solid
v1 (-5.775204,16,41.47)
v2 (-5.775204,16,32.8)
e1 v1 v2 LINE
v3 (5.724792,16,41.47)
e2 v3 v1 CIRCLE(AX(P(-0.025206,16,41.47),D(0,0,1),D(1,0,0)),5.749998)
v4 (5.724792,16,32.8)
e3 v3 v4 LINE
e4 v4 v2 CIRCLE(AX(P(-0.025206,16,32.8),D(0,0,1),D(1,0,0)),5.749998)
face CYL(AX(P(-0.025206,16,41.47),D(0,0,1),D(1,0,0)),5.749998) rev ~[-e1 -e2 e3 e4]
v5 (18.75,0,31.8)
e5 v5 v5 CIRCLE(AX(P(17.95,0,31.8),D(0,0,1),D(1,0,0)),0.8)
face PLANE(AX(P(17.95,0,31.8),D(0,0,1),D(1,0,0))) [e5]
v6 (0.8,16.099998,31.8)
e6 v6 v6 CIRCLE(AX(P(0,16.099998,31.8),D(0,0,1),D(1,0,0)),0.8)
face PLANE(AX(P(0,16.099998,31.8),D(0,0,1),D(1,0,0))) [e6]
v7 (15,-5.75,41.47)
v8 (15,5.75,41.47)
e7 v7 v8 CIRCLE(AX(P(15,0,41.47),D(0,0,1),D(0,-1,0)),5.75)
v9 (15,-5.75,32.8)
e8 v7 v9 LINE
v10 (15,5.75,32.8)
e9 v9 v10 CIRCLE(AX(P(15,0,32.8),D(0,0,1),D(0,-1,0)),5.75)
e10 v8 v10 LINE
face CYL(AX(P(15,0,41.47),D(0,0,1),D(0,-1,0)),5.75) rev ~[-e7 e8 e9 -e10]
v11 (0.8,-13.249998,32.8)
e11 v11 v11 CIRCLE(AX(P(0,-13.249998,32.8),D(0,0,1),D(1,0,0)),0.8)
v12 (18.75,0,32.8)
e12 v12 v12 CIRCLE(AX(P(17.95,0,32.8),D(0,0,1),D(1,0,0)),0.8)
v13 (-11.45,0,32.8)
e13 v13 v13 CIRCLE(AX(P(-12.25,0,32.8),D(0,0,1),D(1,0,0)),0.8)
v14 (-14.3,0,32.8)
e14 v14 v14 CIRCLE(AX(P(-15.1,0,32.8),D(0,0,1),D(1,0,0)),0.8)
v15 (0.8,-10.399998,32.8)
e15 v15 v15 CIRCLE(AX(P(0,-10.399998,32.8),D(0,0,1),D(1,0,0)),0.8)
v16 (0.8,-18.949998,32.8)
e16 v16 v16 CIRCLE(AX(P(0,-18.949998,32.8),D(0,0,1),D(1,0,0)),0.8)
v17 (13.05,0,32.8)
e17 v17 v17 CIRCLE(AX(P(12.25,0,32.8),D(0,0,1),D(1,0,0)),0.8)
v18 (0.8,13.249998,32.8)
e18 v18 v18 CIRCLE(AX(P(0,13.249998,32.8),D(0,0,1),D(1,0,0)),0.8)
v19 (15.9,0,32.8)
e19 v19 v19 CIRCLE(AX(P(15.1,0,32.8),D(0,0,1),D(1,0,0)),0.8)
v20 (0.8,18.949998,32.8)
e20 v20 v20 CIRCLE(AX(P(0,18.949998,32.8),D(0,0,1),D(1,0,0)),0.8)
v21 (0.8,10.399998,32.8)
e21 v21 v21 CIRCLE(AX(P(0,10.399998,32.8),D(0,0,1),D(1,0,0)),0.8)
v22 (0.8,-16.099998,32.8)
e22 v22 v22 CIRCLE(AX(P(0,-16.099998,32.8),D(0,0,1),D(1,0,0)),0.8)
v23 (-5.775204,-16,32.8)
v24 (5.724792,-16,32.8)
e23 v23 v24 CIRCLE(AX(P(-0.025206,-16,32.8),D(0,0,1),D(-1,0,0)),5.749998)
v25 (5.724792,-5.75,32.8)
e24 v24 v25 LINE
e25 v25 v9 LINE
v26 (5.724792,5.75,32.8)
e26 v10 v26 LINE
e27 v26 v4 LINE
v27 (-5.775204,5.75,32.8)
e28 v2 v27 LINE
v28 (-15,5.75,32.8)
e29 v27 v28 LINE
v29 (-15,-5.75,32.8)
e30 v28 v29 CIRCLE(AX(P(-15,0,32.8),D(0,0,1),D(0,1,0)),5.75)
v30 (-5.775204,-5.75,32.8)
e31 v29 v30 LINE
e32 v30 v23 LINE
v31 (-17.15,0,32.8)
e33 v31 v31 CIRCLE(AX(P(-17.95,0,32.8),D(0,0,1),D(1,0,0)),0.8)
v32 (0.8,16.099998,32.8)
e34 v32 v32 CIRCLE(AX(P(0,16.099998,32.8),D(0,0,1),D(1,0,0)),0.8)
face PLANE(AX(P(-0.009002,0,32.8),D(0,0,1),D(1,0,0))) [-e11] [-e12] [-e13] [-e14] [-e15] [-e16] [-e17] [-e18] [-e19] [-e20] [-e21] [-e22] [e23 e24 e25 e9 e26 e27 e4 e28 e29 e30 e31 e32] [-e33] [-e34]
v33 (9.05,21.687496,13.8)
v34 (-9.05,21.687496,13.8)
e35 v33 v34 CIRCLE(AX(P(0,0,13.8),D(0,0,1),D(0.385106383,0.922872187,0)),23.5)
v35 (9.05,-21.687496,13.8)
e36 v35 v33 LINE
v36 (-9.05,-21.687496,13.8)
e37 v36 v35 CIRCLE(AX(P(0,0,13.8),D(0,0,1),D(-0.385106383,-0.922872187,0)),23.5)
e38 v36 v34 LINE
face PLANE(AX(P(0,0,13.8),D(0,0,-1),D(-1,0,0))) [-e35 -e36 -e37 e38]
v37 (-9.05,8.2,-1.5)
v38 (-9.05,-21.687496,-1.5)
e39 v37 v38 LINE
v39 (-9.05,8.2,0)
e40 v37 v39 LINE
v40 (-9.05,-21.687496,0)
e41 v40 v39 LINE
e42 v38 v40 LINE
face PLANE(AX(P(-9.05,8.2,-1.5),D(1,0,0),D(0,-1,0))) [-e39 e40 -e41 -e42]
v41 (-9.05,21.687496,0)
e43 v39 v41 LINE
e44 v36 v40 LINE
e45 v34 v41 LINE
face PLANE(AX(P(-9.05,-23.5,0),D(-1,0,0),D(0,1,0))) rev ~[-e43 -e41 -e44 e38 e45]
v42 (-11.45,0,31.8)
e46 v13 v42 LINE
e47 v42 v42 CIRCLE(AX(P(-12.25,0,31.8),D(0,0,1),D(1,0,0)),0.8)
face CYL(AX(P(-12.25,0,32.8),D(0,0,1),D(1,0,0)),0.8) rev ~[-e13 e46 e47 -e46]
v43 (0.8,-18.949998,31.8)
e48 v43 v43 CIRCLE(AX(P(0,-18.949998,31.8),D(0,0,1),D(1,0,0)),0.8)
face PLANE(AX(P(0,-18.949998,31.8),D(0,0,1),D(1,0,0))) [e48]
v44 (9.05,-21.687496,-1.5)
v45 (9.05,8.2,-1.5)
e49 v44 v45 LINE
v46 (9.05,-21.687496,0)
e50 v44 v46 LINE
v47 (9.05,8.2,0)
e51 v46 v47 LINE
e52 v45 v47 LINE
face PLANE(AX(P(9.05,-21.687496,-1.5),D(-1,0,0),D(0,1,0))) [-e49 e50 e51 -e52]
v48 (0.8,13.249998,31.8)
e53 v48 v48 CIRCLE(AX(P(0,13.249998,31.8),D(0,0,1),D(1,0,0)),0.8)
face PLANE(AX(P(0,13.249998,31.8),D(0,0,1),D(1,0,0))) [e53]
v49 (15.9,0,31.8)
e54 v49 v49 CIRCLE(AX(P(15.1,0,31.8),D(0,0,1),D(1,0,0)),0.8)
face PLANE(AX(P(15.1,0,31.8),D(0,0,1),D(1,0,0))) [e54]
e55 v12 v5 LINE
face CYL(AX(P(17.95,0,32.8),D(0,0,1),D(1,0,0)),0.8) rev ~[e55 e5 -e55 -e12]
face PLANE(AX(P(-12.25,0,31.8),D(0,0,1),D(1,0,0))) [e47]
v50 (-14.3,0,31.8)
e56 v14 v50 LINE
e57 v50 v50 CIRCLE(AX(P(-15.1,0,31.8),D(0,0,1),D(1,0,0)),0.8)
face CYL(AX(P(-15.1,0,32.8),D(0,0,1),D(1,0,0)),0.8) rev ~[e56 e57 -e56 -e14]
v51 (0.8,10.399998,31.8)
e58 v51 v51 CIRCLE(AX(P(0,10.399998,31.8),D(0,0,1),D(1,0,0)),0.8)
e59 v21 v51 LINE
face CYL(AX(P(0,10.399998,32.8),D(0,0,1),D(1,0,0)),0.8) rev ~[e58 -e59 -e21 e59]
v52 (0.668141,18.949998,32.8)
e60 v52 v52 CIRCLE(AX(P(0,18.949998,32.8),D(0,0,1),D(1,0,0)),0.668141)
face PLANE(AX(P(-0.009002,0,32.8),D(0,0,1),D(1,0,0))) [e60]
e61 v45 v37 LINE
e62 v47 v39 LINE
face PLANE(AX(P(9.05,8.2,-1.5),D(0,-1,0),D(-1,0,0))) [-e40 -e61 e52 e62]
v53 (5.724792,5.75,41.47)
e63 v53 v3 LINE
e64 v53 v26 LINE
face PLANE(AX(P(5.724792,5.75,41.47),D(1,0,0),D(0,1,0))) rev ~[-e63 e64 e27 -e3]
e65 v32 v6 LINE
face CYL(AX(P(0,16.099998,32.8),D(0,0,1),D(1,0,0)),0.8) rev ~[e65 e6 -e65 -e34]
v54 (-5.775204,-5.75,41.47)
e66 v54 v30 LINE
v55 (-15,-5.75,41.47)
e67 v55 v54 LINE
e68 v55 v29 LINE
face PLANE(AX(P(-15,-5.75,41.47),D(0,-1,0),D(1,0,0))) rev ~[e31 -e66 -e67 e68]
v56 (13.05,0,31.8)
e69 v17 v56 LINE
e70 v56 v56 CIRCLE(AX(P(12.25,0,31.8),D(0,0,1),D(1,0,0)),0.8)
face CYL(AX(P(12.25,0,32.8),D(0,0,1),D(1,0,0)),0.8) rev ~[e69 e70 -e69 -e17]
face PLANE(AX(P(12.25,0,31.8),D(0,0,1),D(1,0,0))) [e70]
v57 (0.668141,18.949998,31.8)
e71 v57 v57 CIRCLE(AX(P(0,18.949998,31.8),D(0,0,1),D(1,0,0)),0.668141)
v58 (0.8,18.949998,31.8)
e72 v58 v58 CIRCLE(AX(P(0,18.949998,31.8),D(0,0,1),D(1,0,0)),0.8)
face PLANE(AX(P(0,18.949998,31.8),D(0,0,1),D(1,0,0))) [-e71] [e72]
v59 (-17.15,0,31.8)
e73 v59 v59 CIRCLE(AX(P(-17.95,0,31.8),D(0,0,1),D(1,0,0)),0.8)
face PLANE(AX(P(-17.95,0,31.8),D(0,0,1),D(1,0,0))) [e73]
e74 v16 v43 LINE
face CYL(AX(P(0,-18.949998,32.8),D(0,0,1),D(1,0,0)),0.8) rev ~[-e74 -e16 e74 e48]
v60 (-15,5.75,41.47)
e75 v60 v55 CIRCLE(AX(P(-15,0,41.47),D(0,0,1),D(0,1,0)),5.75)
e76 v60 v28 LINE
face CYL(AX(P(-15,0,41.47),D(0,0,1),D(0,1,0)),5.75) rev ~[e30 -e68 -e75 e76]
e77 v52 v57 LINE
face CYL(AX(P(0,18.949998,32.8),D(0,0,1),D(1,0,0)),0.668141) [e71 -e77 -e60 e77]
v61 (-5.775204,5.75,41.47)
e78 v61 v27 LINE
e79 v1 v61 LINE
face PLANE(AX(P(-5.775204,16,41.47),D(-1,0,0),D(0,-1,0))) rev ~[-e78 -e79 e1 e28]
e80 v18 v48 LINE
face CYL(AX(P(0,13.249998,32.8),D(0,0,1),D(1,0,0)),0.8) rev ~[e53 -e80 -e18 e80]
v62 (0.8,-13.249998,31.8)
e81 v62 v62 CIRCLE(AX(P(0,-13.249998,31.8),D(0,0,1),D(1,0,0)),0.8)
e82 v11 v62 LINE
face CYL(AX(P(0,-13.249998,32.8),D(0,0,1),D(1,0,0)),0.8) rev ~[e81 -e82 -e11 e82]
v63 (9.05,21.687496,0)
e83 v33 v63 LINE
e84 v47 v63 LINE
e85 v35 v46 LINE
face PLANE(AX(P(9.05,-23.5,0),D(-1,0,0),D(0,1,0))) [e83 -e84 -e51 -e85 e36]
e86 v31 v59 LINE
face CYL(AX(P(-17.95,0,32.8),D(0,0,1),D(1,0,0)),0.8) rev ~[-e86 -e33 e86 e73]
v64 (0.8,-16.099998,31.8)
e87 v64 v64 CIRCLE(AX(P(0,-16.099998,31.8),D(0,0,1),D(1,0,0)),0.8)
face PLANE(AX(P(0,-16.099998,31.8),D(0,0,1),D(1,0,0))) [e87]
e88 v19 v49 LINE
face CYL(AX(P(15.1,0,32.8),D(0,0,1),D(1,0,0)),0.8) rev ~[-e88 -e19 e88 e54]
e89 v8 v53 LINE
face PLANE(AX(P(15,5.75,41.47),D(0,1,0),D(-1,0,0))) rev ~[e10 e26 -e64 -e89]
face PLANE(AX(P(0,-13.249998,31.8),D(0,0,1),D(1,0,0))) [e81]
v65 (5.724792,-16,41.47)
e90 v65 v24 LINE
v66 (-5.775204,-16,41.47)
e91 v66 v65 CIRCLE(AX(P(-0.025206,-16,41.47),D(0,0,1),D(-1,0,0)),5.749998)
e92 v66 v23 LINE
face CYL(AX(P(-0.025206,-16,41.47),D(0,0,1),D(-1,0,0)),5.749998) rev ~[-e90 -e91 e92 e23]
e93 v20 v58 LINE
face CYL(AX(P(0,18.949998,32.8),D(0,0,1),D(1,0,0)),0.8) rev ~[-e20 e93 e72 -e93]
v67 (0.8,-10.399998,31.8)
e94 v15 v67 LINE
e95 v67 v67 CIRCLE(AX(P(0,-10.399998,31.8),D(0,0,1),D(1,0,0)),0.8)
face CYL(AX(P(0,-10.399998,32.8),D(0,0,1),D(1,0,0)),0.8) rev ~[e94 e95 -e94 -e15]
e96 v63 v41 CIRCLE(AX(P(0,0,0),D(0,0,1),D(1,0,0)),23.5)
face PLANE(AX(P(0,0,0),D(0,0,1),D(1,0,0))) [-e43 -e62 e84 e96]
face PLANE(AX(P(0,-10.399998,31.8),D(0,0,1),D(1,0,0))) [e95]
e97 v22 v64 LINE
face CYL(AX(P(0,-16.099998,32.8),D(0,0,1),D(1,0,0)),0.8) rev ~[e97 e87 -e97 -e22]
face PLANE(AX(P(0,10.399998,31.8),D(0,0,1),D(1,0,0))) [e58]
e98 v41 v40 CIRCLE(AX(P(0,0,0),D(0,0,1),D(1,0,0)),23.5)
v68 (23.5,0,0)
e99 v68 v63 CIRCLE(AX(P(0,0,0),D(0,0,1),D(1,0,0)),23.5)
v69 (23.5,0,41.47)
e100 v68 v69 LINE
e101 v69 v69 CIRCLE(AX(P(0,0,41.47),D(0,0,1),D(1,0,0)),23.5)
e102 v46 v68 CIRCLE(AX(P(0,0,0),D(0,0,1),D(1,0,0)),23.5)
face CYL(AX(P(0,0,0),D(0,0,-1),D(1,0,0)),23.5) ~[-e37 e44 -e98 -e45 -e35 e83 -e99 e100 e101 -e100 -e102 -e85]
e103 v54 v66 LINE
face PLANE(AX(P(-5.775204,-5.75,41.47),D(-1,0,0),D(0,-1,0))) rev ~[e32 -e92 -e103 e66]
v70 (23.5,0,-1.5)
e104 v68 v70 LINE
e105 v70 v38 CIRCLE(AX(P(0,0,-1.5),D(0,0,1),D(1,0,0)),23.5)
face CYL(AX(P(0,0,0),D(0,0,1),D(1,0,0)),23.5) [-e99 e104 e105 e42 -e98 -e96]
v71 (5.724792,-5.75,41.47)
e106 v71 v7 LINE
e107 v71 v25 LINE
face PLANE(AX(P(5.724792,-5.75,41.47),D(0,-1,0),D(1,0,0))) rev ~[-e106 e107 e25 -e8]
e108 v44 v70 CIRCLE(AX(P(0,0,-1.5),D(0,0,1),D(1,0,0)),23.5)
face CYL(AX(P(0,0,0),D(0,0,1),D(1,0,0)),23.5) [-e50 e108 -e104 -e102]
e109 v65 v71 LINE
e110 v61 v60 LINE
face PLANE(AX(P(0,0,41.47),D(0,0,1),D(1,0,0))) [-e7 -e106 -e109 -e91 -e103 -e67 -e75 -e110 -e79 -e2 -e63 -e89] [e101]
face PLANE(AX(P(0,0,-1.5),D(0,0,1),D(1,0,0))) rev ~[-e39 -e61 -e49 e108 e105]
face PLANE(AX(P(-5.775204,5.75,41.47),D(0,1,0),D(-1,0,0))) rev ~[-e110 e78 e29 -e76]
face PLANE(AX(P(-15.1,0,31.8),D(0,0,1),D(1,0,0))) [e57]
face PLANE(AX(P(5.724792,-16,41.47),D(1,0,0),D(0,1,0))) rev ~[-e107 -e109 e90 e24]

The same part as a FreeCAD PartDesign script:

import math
import FreeCAD as App
import Part
import Sketcher

V = App.Vector


def add_polygon(sketch, points):
    """Adds a closed chain of lines whose ends are joined by coincident constraints."""
    first, n = sketch.GeometryCount, len(points)
    for a, b in zip(points, points[1:] + points[:1]):
        sketch.addGeometry(Part.LineSegment(App.Vector(*a, 0), App.Vector(*b, 0)), False)
    for i in range(n):
        sketch.addConstraint(Sketcher.Constraint("Coincident", first + i, 2, first + (i + 1) % n, 1))

doc = App.newDocument("Part")
body = doc.addObject("PartDesign::Body", "Body")

sketch1 = body.newObject("Sketcher::SketchObject", "Sketch")
sketch1.AttachmentSupport = (doc.getObject("XY_Plane"), [""])
sketch1.MapMode = "FlatFace"
sketch1.addGeometry(Part.Circle(V(0, 0, 0), V(0, 0, 1), 24), False)
sketch1.addConstraint([
    Sketcher.Constraint("Coincident", 0, 3, -1, 1),
    Sketcher.Constraint("Diameter", 0, 47.0),
])
pad1 = body.newObject("PartDesign::Pad", "Pad")
pad1.Profile = sketch1
pad1.Length = 41.47

sketch2 = body.newObject("Sketcher::SketchObject", "Sketch001")
sketch2.AttachmentSupport = (doc.getObject("XY_Plane"), [""])
sketch2.MapMode = "FlatFace"
add_polygon(sketch2, [(9, 24), (9, -24), (-9, -24), (-9, 24)])
sketch2.addConstraint([
    Sketcher.Constraint("Vertical", 0),
    Sketcher.Constraint("Horizontal", 1),
    Sketcher.Constraint("Vertical", 2),
    Sketcher.Constraint("Horizontal", 3),
    Sketcher.Constraint("Symmetric", 0, 2, 2, 2, -1, 1),
    Sketcher.Constraint("DistanceY", 0, 2, 0, 1, 47.0),
    Sketcher.Constraint("DistanceX", 1, 2, 1, 1, 18.1),
])
pocket1 = body.newObject("PartDesign::Pocket", "Pocket")
pocket1.Profile = sketch2
pocket1.Length = 13.8
pocket1.Reversed = True

sketch3 = body.newObject("Sketcher::SketchObject", "Sketch002")
sketch3.AttachmentSupport = (doc.getObject("XY_Plane"), [""])
sketch3.MapMode = "FlatFace"
sketch3.addGeometry(Part.Circle(V(0, 0, 0), V(0, 0, 1), 24), False)
sketch3.addConstraint([
    Sketcher.Constraint("Coincident", 0, 3, -1, 1),
    Sketcher.Constraint("Diameter", 0, 47.0),
])
pad2 = body.newObject("PartDesign::Pad", "Pad001")
pad2.Profile = sketch3
pad2.Length = 1.5
pad2.Reversed = True

sketch4 = body.newObject("Sketcher::SketchObject", "Sketch003")
sketch4.AttachmentSupport = (doc.getObject("XY_Plane"), [""])
sketch4.MapMode = "FlatFace"
sketch4.AttachmentOffset = App.Placement(V(0, 0, -1.5), App.Rotation())
sketch4.addGeometry([
    Part.LineSegment(V(-9, 8, 0), V(9, 8, 0)),
    Part.LineSegment(V(9, 8, 0), V(9, -22, 0)),
    Part.ArcOfCircle(Part.Circle(V(0, 0, 0), V(0, 0, 1), 24), math.radians(-113), math.radians(-67)),
    Part.LineSegment(V(-9, -22, 0), V(-9, 8, 0)),
], False)
sketch4.addConstraint([
    Sketcher.Constraint("Coincident", 0, 2, 1, 1),
    Sketcher.Constraint("Coincident", 1, 2, 2, 2),
    Sketcher.Constraint("Coincident", 2, 1, 3, 1),
    Sketcher.Constraint("Coincident", 3, 2, 0, 1),
    Sketcher.Constraint("Horizontal", 0),
    Sketcher.Constraint("Vertical", 1),
    Sketcher.Constraint("Vertical", 3),
    Sketcher.Constraint("Coincident", 2, 3, -1, 1),
    Sketcher.Constraint("Horizontal", 1, 2, 2, 1),
    Sketcher.Constraint("Radius", 2, 23.5),
    Sketcher.Constraint("DistanceX", 0, 1, 0, 2, 18.1),
    Sketcher.Constraint("DistanceY", -1, 1, 0, 2, 8.2),
])
pocket2 = body.newObject("PartDesign::Pocket", "Pocket001")
pocket2.Profile = sketch4
pocket2.Length = 1.5
pocket2.Reversed = True

sketch5 = body.newObject("Sketcher::SketchObject", "Sketch004")
sketch5.AttachmentSupport = (doc.getObject("XY_Plane"), [""])
sketch5.MapMode = "FlatFace"
sketch5.AttachmentOffset = App.Placement(V(0, 0, 41.47), App.Rotation())
sketch5.addGeometry([
    Part.LineSegment(V(-6, 16, 0), V(-6, 6, 0)),
    Part.LineSegment(V(-6, 6, 0), V(-15, 6, 0)),
    Part.ArcOfCircle(Part.Circle(V(-15, 0, 0), V(0, 0, 1), 6), math.radians(90), math.radians(270)),
    Part.LineSegment(V(-15, -6, 0), V(-6, -6, 0)),
    Part.LineSegment(V(-6, -6, 0), V(-6, -16, 0)),
    Part.ArcOfCircle(Part.Circle(V(0, -16, 0), V(0, 0, 1), 6), math.radians(180), math.radians(360)),
    Part.LineSegment(V(6, -16, 0), V(6, -6, 0)),
    Part.LineSegment(V(6, -6, 0), V(15, -6, 0)),
    Part.ArcOfCircle(Part.Circle(V(15, 0, 0), V(0, 0, 1), 6), math.radians(-90), math.radians(90)),
    Part.LineSegment(V(15, 6, 0), V(6, 6, 0)),
    Part.LineSegment(V(6, 6, 0), V(6, 16, 0)),
    Part.ArcOfCircle(Part.Circle(V(0, 16, 0), V(0, 0, 1), 6), math.radians(0), math.radians(180)),
], False)
sketch5.addConstraint([
    Sketcher.Constraint("Coincident", 0, 2, 1, 1),
    Sketcher.Constraint("Tangent", 1, 2, 2, 1),
    Sketcher.Constraint("Tangent", 2, 2, 3, 1),
    Sketcher.Constraint("Coincident", 3, 2, 4, 1),
    Sketcher.Constraint("Tangent", 4, 2, 5, 1),
    Sketcher.Constraint("Tangent", 5, 2, 6, 1),
    Sketcher.Constraint("Coincident", 6, 2, 7, 1),
    Sketcher.Constraint("Tangent", 7, 2, 8, 1),
    Sketcher.Constraint("Tangent", 8, 2, 9, 1),
    Sketcher.Constraint("Coincident", 9, 2, 10, 1),
    Sketcher.Constraint("Tangent", 10, 2, 11, 1),
    Sketcher.Constraint("Tangent", 11, 2, 0, 1),
    Sketcher.Constraint("Vertical", 0),
    Sketcher.Constraint("Horizontal", 1),
    Sketcher.Constraint("Horizontal", 3),
    Sketcher.Constraint("Vertical", 4),
    Sketcher.Constraint("Vertical", 6),
    Sketcher.Constraint("Horizontal", 7),
    Sketcher.Constraint("Horizontal", 9),
    Sketcher.Constraint("Vertical", 10),
    Sketcher.Constraint("Equal", 2, 5),
    Sketcher.Constraint("Equal", 5, 8),
    Sketcher.Constraint("Equal", 8, 11),
    Sketcher.Constraint("Symmetric", 2, 3, 8, 3, -1, 1),
    Sketcher.Constraint("Symmetric", 5, 3, 11, 3, -1),
    Sketcher.Constraint("PointOnObject", 2, 3, -1),
    Sketcher.Constraint("Radius", 2, 5.75),
    Sketcher.Constraint("DistanceX", 2, 3, -1, 1, 15.0),
    Sketcher.Constraint("DistanceY", 5, 3, -1, 1, 16.0),
    Sketcher.Constraint("DistanceX", 1, 2, 1, 1, 9.224796),
])
pocket3 = body.newObject("PartDesign::Pocket", "Pocket002")
pocket3.Profile = sketch5
pocket3.Length = 8.67

sketch6 = body.newObject("Sketcher::SketchObject", "Sketch005")
sketch6.AttachmentSupport = (doc.getObject("XY_Plane"), [""])
sketch6.MapMode = "FlatFace"
sketch6.AttachmentOffset = App.Placement(V(0, 0, 32.8), App.Rotation())
sketch6.addGeometry([
    Part.Circle(V(0, 18.9, 0), V(0, 0, 1), 0.8),
    Part.Circle(V(0, 18.9, 0), V(0, 0, 1), 0.7),
    Part.Circle(V(0, 10.4, 0), V(0, 0, 1), 0.8),
    Part.Circle(V(0, 13.2, 0), V(0, 0, 1), 0.8),
    Part.Circle(V(0, 16.1, 0), V(0, 0, 1), 0.8),
    Part.Circle(V(0, -10.4, 0), V(0, 0, 1), 0.8),
    Part.Circle(V(0, -13.2, 0), V(0, 0, 1), 0.8),
    Part.Circle(V(0, -16.1, 0), V(0, 0, 1), 0.8),
    Part.Circle(V(0, -18.9, 0), V(0, 0, 1), 0.8),
    Part.Circle(V(12.2, 0, 0), V(0, 0, 1), 0.8),
    Part.Circle(V(15.1, 0, 0), V(0, 0, 1), 0.8),
    Part.Circle(V(17.9, 0, 0), V(0, 0, 1), 0.8),
    Part.Circle(V(-12.2, 0, 0), V(0, 0, 1), 0.8),
    Part.Circle(V(-15.1, 0, 0), V(0, 0, 1), 0.8),
    Part.Circle(V(-17.9, 0, 0), V(0, 0, 1), 0.8),
], False)
sketch6.addConstraint([
    Sketcher.Constraint("Coincident", 1, 3, 0, 3),
    Sketcher.Constraint("Equal", 0, 2),
    Sketcher.Constraint("Equal", 2, 3),
    Sketcher.Constraint("Equal", 3, 4),
    Sketcher.Constraint("Equal", 4, 5),
    Sketcher.Constraint("Equal", 5, 6),
    Sketcher.Constraint("Equal", 6, 7),
    Sketcher.Constraint("Equal", 7, 8),
    Sketcher.Constraint("Equal", 8, 9),
    Sketcher.Constraint("Equal", 9, 10),
    Sketcher.Constraint("Equal", 10, 11),
    Sketcher.Constraint("Equal", 11, 12),
    Sketcher.Constraint("Equal", 12, 13),
    Sketcher.Constraint("Equal", 13, 14),
    Sketcher.Constraint("Symmetric", 2, 3, 5, 3, -1, 1),
    Sketcher.Constraint("Symmetric", 3, 3, 6, 3, -1, 1),
    Sketcher.Constraint("Symmetric", 4, 3, 7, 3, -1, 1),
    Sketcher.Constraint("Symmetric", 0, 3, 8, 3, -1, 1),
    Sketcher.Constraint("Symmetric", 9, 3, 12, 3, -1, 1),
    Sketcher.Constraint("Symmetric", 10, 3, 13, 3, -1, 1),
    Sketcher.Constraint("Symmetric", 11, 3, 14, 3, -1, 1),
    Sketcher.Constraint("PointOnObject", 0, 3, -2),
    Sketcher.Constraint("PointOnObject", 2, 3, -2),
    Sketcher.Constraint("PointOnObject", 3, 3, -2),
    Sketcher.Constraint("PointOnObject", 4, 3, -2),
    Sketcher.Constraint("PointOnObject", 9, 3, -1),
    Sketcher.Constraint("PointOnObject", 10, 3, -1),
    Sketcher.Constraint("PointOnObject", 11, 3, -1),
    Sketcher.Constraint("Diameter", 0, 1.6),
    Sketcher.Constraint("DistanceY", -1, 1, 2, 3, 10.399998),
    Sketcher.Constraint("DistanceY", -1, 1, 4, 3, 16.099998),
    Sketcher.Constraint("DistanceX", -1, 1, 10, 3, 15.1),
    Sketcher.Constraint("DistanceY", 3, 3, 0, 3, 5.7),
    Sketcher.Constraint("DistanceX", 9, 3, 11, 3, 5.7),
    Sketcher.Constraint("Diameter", 1, 1.336281),
    Sketcher.Constraint("DistanceY", -1, 1, 0, 3, 18.949998),
    Sketcher.Constraint("DistanceX", -1, 1, 9, 3, 12.25),
])
pocket4 = body.newObject("PartDesign::Pocket", "Pocket003")
pocket4.Profile = sketch6
pocket4.Length = 1

doc.recompute()
